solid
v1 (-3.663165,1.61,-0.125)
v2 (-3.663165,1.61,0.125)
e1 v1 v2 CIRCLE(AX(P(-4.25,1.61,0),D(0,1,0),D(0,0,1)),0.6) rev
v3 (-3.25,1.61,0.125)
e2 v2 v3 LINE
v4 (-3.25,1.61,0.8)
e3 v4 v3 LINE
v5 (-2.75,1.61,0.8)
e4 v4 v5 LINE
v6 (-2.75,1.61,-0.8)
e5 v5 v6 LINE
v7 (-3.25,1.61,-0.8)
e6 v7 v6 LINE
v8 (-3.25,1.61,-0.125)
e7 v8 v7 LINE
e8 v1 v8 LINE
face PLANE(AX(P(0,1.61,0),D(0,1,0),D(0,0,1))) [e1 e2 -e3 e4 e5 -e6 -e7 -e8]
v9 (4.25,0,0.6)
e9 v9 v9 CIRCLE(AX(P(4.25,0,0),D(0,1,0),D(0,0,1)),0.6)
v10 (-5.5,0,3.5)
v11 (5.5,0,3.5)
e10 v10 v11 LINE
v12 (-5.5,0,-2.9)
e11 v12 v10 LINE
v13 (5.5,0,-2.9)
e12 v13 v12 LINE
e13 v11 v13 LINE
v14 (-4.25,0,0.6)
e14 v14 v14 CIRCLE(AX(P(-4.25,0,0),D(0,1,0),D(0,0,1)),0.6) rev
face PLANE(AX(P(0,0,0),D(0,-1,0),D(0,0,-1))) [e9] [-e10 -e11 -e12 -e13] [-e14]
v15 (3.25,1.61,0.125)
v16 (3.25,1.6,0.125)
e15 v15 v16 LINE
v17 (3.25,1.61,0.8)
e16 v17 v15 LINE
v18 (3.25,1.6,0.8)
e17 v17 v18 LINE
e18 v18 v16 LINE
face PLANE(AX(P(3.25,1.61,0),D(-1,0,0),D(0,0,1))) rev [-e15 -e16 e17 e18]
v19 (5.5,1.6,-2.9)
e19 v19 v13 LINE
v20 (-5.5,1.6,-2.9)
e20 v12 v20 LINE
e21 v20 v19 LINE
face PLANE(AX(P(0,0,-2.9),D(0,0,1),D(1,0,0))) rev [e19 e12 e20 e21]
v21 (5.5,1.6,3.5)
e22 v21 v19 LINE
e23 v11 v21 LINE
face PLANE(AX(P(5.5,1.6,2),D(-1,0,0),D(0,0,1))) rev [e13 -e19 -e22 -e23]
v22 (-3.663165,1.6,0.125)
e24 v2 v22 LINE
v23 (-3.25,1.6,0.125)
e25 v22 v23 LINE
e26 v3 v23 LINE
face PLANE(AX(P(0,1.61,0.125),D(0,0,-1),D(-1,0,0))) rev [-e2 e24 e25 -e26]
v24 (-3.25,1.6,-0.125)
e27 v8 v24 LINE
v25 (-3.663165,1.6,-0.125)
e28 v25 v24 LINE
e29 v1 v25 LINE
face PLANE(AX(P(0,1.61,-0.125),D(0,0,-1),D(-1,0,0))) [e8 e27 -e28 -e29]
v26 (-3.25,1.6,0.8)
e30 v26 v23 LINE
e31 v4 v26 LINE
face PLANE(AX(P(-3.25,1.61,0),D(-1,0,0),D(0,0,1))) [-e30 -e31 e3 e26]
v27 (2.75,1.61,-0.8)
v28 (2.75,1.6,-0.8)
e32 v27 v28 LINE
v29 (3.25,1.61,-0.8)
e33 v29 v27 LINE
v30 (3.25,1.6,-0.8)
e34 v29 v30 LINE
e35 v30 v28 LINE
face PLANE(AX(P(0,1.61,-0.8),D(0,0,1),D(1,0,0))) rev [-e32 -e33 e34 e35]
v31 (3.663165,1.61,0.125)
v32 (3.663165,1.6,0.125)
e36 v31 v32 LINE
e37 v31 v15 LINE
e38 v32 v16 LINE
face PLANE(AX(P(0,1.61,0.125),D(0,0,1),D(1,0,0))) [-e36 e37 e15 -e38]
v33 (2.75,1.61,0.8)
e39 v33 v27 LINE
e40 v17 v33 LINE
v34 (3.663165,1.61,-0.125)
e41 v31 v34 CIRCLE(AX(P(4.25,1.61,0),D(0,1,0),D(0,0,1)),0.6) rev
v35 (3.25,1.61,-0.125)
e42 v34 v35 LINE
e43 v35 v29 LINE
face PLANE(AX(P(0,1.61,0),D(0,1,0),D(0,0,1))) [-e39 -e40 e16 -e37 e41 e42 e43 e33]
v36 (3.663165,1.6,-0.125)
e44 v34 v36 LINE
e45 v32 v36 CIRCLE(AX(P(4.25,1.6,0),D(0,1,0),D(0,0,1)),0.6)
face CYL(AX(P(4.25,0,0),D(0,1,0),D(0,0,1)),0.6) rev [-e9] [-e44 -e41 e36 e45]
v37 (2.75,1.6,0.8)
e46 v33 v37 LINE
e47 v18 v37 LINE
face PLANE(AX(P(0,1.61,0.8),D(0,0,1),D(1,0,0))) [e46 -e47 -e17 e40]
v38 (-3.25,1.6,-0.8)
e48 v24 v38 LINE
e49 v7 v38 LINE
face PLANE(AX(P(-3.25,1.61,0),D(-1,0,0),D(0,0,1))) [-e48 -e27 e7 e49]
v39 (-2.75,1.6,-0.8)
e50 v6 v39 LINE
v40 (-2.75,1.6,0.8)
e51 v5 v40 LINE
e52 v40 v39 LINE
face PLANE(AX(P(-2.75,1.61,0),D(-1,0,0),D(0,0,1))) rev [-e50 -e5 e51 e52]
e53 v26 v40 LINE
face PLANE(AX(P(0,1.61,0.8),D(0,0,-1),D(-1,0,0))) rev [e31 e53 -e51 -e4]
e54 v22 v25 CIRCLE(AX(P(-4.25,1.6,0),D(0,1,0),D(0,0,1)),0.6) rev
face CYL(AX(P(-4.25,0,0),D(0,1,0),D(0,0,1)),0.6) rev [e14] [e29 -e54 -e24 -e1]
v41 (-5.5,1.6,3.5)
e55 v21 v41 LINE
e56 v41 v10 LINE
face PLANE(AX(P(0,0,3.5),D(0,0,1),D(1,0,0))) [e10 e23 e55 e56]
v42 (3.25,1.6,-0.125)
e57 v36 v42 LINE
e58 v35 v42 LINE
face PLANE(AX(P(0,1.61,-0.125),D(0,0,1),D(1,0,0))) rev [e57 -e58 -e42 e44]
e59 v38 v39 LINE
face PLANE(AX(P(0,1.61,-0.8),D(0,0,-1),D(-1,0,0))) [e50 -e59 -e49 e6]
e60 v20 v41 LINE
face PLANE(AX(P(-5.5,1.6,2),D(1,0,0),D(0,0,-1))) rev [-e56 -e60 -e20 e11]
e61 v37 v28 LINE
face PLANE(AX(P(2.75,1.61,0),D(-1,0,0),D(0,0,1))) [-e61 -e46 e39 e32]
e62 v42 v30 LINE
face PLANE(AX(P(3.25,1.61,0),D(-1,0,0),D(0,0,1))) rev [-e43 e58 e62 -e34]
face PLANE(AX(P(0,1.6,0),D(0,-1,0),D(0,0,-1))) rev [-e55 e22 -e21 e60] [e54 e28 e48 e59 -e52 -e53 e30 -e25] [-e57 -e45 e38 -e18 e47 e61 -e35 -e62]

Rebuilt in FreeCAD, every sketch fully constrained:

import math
import FreeCAD as App
import Part
import Sketcher

V = App.Vector

doc = App.newDocument("Part")
body = doc.addObject("PartDesign::Body", "Body")

# Sketch on XZ plane
sketch1 = body.newObject("Sketcher::SketchObject", "Sketch")
sketch1.AttachmentSupport = (doc.getObject("XZ_Plane"), [""])
sketch1.MapMode = "FlatFace"
sketch1.addGeometry([
    Part.LineSegment(V(-5.5, -2, 0), V(-5.5, 2, 0)),
    Part.LineSegment(V(-5.5, 2, 0), V(5.5, 2, 0)),
    Part.LineSegment(V(5.5, 2, 0), V(5.5, -2, 0)),
    Part.LineSegment(V(5.5, -2, 0), V(-5.5, -2, 0)),
], False)
sketch1.addConstraint([
    Sketcher.Constraint("Coincident", 0, 2, 1, 1),
    Sketcher.Constraint("Coincident", 1, 2, 2, 1),
    Sketcher.Constraint("Coincident", 2, 2, 3, 1),
    Sketcher.Constraint("Coincident", 3, 2, 0, 1),
    Sketcher.Constraint("Vertical", 0),
    Sketcher.Constraint("Horizontal", 1),
    Sketcher.Constraint("Vertical", 2),
    Sketcher.Constraint("Horizontal", 3),
    Sketcher.Constraint("Symmetric", 0, 2, 2, 2, -1, 1),
    Sketcher.Constraint("DistanceX", 1, 1, 1, 2, 11.0),
    Sketcher.Constraint("DistanceY", 0, 1, 0, 2, 4.0),
])
pad1 = body.newObject("PartDesign::Pad", "Pad")
pad1.Profile = sketch1
pad1.Length = 1.6
pad1.Reversed = True

# Sketch on XZ plane
sketch2 = body.newObject("Sketcher::SketchObject", "Sketch001")
sketch2.AttachmentSupport = (doc.getObject("XZ_Plane"), [""])
sketch2.MapMode = "FlatFace"
sketch2.AttachmentOffset = App.Placement(V(0, 0, -1.6), App.Rotation())
sketch2.addGeometry([
    Part.Circle(V(4.2, 0, 0), V(0, 0, 1), 0.6),
    Part.Circle(V(-4.2, 0, 0), V(0, 0, 1), 0.6),
], False)
sketch2.addConstraint([
    Sketcher.Constraint("Equal", 0, 1),
    Sketcher.Constraint("Symmetric", 0, 3, 1, 3, -1, 1),
    Sketcher.Constraint("PointOnObject", 0, 3, -1),
    Sketcher.Constraint("Diameter", 0, 1.2),
    Sketcher.Constraint("DistanceX", 1, 3, 0, 3, 8.5),
])
pocket1 = body.newObject("PartDesign::Pocket", "Pocket")
pocket1.Profile = sketch2
pocket1.Length = 1.6
pocket1.Reversed = True

# Sketch on XZ plane
sketch3 = body.newObject("Sketcher::SketchObject", "Sketch002")
sketch3.AttachmentSupport = (doc.getObject("XZ_Plane"), [""])
sketch3.MapMode = "FlatFace"
sketch3.AttachmentOffset = App.Placement(V(0, 0, -1.6), App.Rotation())
sketch3.addGeometry([
    Part.LineSegment(V(-3.2, -0.8, 0), V(-3.2, 0.8, 0)),  # 0
    Part.LineSegment(V(-3.2, 0.8, 0), V(-2.8, 0.8, 0)),  # 1
    Part.LineSegment(V(-2.8, 0.8, 0), V(-2.8, -0.8, 0)),  # 2
    Part.LineSegment(V(-2.8, -0.8, 0), V(-3.2, -0.8, 0)),  # 3
    Part.LineSegment(V(2.8, -0.8, 0), V(2.8, 0.8, 0)),  # 4
    Part.LineSegment(V(2.8, 0.8, 0), V(3.2, 0.8, 0)),  # 5
    Part.LineSegment(V(3.2, 0.8, 0), V(3.2, -0.8, 0)),  # 6
    Part.LineSegment(V(3.2, -0.8, 0), V(2.8, -0.8, 0)),  # 7
], False)
sketch3.addConstraint([
    Sketcher.Constraint("Coincident", 0, 2, 1, 1),
    Sketcher.Constraint("Coincident", 1, 2, 2, 1),
    Sketcher.Constraint("Coincident", 2, 2, 3, 1),
    Sketcher.Constraint("Coincident", 3, 2, 0, 1),
    Sketcher.Constraint("Coincident", 4, 2, 5, 1),
    Sketcher.Constraint("Coincident", 5, 2, 6, 1),
    Sketcher.Constraint("Coincident", 6, 2, 7, 1),
    Sketcher.Constraint("Coincident", 7, 2, 4, 1),
    Sketcher.Constraint("Vertical", 0),
    Sketcher.Constraint("Horizontal", 1),
    Sketcher.Constraint("Vertical", 2),
    Sketcher.Constraint("Horizontal", 3),
    Sketcher.Constraint("Vertical", 4),
    Sketcher.Constraint("Horizontal", 5),
    Sketcher.Constraint("Vertical", 6),
    Sketcher.Constraint("Horizontal", 7),
    Sketcher.Constraint("Symmetric", 2, 2, 4, 2, -1, 1),
    Sketcher.Constraint("Symmetric", 0, 2, 6, 2, -1, 1),
    Sketcher.Constraint("Horizontal", 1, 2, 4, 2),
    Sketcher.Constraint("DistanceX", 1, 1, 1, 2, 0.5),
    Sketcher.Constraint("DistanceY", 0, 1, 0, 2, 1.6),
    Sketcher.Constraint("DistanceX", 0, 2, 4, 2, 6.0),
])
pad2 = body.newObject("PartDesign::Pad", "Pad001")
pad2.Profile = sketch3
pad2.Length = 0.01
pad2.Reversed = True

# Sketch on XZ plane
sketch4 = body.newObject("Sketcher::SketchObject", "Sketch003")
sketch4.AttachmentSupport = (doc.getObject("XZ_Plane"), [""])
sketch4.MapMode = "FlatFace"
sketch4.AttachmentOffset = App.Placement(V(0, 0, -1.6), App.Rotation())
sketch4.addGeometry([
    Part.LineSegment(V(3.25, 0.12, 0), V(3.66, 0.12, 0)),  # 0
    Part.ArcOfCircle(Part.Circle(V(4.25, 0, 0), V(0, 0, 1), 0.6), math.radians(168), math.radians(192)),  # 1
    Part.LineSegment(V(3.66, -0.12, 0), V(3.25, -0.12, 0)),  # 2
    Part.LineSegment(V(3.25, -0.12, 0), V(3.25, 0.12, 0)),  # 3
    Part.LineSegment(V(-3.25, -0.12, 0), V(-3.66, -0.12, 0)),  # 4
    Part.ArcOfCircle(Part.Circle(V(-4.25, 0, 0), V(0, 0, 1), 0.6), math.radians(-12.03), math.radians(0)),  # 5
    Part.ArcOfCircle(Part.Circle(V(-4.25, 0, 0), V(0, 0, 1), 0.6), math.radians(0), math.radians(12.03)),  # 6
    Part.LineSegment(V(-3.66, 0.12, 0), V(-3.25, 0.12, 0)),  # 7
    Part.LineSegment(V(-3.25, 0.12, 0), V(-3.25, -0.12, 0)),  # 8
], False)
sketch4.addConstraint([
    Sketcher.Constraint("Coincident", 0, 2, 1, 1),
    Sketcher.Constraint("Coincident", 1, 2, 2, 1),
    Sketcher.Constraint("Coincident", 2, 2, 3, 1),
    Sketcher.Constraint("Coincident", 3, 2, 0, 1),
    Sketcher.Constraint("Coincident", 4, 2, 5, 1),
    Sketcher.Constraint("Coincident", 5, 2, 6, 1),
    Sketcher.Constraint("Coincident", 6, 2, 7, 1),
    Sketcher.Constraint("Coincident", 7, 2, 8, 1),
    Sketcher.Constraint("Coincident", 8, 2, 4, 1),
    Sketcher.Constraint("Horizontal", 0),
    Sketcher.Constraint("Horizontal", 2),
    Sketcher.Constraint("Vertical", 3),
    Sketcher.Constraint("Horizontal", 4),
    Sketcher.Constraint("Horizontal", 7),
    Sketcher.Constraint("Vertical", 8),
    Sketcher.Constraint("Equal", 5, 6),
    Sketcher.Constraint("Symmetric", 0, 2, 4, 2, -1, 1),
    Sketcher.Constraint("Symmetric", 1, 2, 6, 2, -1, 1),
    Sketcher.Constraint("Symmetric", 1, 2, 4, 2, -2),
    Sketcher.Constraint("PointOnObject", 5, 2, -1),
    Sketcher.Constraint("Equal", 2, 4),
    Sketcher.Constraint("DistanceY", 3, 1, 3, 2, 0.25),
    Sketcher.Constraint("DistanceX", 5, 2, 2, 2, 6.9),
    Sketcher.Constraint("DistanceX", 5, 2, 7, 2, 0.4),
    Sketcher.Constraint("Radius", 1, 0.600012),
    Sketcher.Constraint("Radius", 5, 0.599947),
    Sketcher.Constraint("DistanceX", 0, 1, 0, 2, 0.413165),
])
pad3 = body.newObject("PartDesign::Pad", "Pad002")
pad3.Profile = sketch4
pad3.Length = 0.01
pad3.Reversed = True

# Sketch on XY plane
sketch5 = body.newObject("Sketcher::SketchObject", "Sketch004")
sketch5.AttachmentSupport = (doc.getObject("XY_Plane"), [""])
sketch5.MapMode = "FlatFace"
sketch5.AttachmentOffset = App.Placement(V(0, 0, 2), App.Rotation())
sketch5.addGeometry([
    Part.LineSegment(V(-5.5, 1.6, 0), V(-5.5, 0, 0)),
    Part.LineSegment(V(-5.5, 0, 0), V(5.5, 0, 0)),
    Part.LineSegment(V(5.5, 0, 0), V(5.5, 1.6, 0)),
    Part.LineSegment(V(5.5, 1.6, 0), V(-5.5, 1.6, 0)),
], False)
sketch5.addConstraint([
    Sketcher.Constraint("Coincident", 0, 2, 1, 1),
    Sketcher.Constraint("Coincident", 1, 2, 2, 1),
    Sketcher.Constraint("Coincident", 2, 2, 3, 1),
    Sketcher.Constraint("Coincident", 3, 2, 0, 1),
    Sketcher.Constraint("Vertical", 0),
    Sketcher.Constraint("Horizontal", 1),
    Sketcher.Constraint("Vertical", 2),
    Sketcher.Constraint("Horizontal", 3),
    Sketcher.Constraint("Symmetric", 0, 2, 1, 2, -1, 1),
    Sketcher.Constraint("DistanceX", 1, 1, 1, 2, 11.0),
    Sketcher.Constraint("DistanceY", 0, 2, 0, 1, 1.6),
])
pad4 = body.newObject("PartDesign::Pad", "Pad003")
pad4.Profile = sketch5
pad4.Length = 1.5

# Sketch on XY plane
sketch6 = body.newObject("Sketcher::SketchObject", "Sketch005")
sketch6.AttachmentSupport = (doc.getObject("XY_Plane"), [""])
sketch6.MapMode = "FlatFace"
sketch6.AttachmentOffset = App.Placement(V(0, 0, -2), App.Rotation())
sketch6.addGeometry([
    Part.LineSegment(V(5.5, 1.6, 0), V(5.5, 0, 0)),
    Part.LineSegment(V(5.5, 0, 0), V(-5.5, 0, 0)),
    Part.LineSegment(V(-5.5, 0, 0), V(-5.5, 1.6, 0)),
    Part.LineSegment(V(-5.5, 1.6, 0), V(5.5, 1.6, 0)),
], False)
sketch6.addConstraint([
    Sketcher.Constraint("Coincident", 0, 2, 1, 1),
    Sketcher.Constraint("Coincident", 1, 2, 2, 1),
    Sketcher.Constraint("Coincident", 2, 2, 3, 1),
    Sketcher.Constraint("Coincident", 3, 2, 0, 1),
    Sketcher.Constraint("Vertical", 0),
    Sketcher.Constraint("Horizontal", 1),
    Sketcher.Constraint("Vertical", 2),
    Sketcher.Constraint("Horizontal", 3),
    Sketcher.Constraint("Symmetric", 0, 2, 1, 2, -1, 1),
    Sketcher.Constraint("DistanceX", 1, 2, 1, 1, 11.0),
    Sketcher.Constraint("DistanceY", 0, 2, 0, 1, 1.6),
])
pad5 = body.newObject("PartDesign::Pad", "Pad004")
pad5.Profile = sketch6
pad5.Length = 0.9
pad5.Reversed = True

doc.recompute()
